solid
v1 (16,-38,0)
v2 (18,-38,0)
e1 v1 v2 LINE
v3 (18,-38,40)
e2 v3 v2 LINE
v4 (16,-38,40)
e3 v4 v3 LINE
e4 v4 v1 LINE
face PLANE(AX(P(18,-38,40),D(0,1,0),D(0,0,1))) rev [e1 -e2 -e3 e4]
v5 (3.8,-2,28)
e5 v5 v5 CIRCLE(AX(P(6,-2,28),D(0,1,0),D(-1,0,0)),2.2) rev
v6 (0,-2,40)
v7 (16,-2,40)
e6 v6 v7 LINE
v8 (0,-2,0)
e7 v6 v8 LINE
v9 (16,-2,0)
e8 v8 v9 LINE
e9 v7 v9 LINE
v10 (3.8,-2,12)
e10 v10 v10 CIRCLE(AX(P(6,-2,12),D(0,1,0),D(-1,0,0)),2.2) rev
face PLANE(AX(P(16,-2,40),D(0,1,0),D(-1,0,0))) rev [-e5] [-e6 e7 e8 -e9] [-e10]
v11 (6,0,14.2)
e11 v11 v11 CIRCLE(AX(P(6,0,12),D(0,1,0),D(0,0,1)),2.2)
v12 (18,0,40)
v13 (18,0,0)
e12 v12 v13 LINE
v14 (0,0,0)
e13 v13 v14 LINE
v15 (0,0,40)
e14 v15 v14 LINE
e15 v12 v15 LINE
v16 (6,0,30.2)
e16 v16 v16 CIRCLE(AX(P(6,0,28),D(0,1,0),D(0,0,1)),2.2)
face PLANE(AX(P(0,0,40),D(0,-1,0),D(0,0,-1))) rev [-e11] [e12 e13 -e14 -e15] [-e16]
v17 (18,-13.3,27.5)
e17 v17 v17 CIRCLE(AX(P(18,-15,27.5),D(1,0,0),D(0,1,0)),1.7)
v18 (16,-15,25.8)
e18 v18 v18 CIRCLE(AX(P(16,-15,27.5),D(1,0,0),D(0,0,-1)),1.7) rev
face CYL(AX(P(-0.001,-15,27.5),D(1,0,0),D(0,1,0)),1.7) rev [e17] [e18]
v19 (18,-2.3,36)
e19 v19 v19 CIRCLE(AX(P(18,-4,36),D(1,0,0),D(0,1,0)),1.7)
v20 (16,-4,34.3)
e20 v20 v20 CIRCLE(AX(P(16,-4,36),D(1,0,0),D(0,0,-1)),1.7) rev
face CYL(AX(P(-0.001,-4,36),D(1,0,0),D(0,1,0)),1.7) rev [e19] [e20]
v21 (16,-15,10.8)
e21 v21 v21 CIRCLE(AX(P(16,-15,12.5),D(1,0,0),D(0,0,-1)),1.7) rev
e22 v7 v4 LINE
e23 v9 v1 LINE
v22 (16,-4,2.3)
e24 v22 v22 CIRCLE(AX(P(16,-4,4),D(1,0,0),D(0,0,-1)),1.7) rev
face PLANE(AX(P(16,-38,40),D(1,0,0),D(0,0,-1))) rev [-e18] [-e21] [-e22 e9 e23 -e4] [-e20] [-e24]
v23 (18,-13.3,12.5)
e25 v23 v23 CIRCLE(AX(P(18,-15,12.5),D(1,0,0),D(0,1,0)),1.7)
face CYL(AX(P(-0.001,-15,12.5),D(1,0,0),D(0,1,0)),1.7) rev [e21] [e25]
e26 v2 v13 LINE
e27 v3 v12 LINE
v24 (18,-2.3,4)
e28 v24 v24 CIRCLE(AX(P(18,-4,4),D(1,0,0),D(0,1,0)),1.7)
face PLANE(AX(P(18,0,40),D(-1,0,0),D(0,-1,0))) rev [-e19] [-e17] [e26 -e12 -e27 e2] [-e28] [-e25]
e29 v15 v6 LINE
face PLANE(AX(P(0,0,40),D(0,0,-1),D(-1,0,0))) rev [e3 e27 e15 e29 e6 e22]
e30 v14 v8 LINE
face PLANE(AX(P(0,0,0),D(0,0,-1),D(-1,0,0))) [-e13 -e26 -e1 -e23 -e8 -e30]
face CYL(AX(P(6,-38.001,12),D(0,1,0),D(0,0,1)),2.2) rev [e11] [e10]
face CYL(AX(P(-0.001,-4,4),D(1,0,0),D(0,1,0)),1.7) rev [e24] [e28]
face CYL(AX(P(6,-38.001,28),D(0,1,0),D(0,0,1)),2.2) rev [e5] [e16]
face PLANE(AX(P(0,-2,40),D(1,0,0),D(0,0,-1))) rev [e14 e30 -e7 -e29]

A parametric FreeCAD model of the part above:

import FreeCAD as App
import Part
import Sketcher

V = App.Vector
Q = App.Units.Quantity


def add_polygon(sketch, points):
    """Adds a closed chain of lines whose ends are joined by coincident constraints."""
    first, n = sketch.GeometryCount, len(points)
    for a, b in zip(points, points[1:] + points[:1]):
        sketch.addGeometry(Part.LineSegment(App.Vector(*a, 0), App.Vector(*b, 0)), False)
    for i in range(n):
        sketch.addConstraint(Sketcher.Constraint("Coincident", first + i, 2, first + (i + 1) % n, 1))

doc = App.newDocument("Part")
params = doc.addObject("Spreadsheet::Sheet", "Params")
for row, (alias, value) in enumerate([
    ("sketch1_width", "18 mm"),
    ("sketch1_width2", "16 mm"),
    ("sketch1_height", "36 mm"),
    ("pad1_length", "40 mm"),
    ("sketch2_diameter", "4.4 mm"),
    ("sketch3_diameter", "4.4 mm"),
    ("sketch4_diameter", "3.4 mm"),
    ("sketch5_diameter", "3.4 mm"),
    ("sketch6_diameter", "3.4 mm"),
    ("sketch7_diameter", "3.4 mm"),
], start=1):
    params.set(f"A{row}", alias)
    params.set(f"B{row}", "=" + value)
    params.setAlias(f"B{row}", alias)

body = doc.addObject("PartDesign::Body", "Body")

# Sketch on XY plane
sketch1 = body.newObject("Sketcher::SketchObject", "Sketch")
sketch1.AttachmentSupport = (doc.getObject("XY_Plane"), [""])
sketch1.MapMode = "FlatFace"
add_polygon(sketch1, [(18, 0), (0, 0), (0, -2), (16, -2), (16, -38), (18, -38)])  # lines 0-5
sketch1.addConstraint([
    Sketcher.Constraint("Horizontal", 0),
    Sketcher.Constraint("Vertical", 1),
    Sketcher.Constraint("Horizontal", 2),
    Sketcher.Constraint("Vertical", 3),
    Sketcher.Constraint("Horizontal", 4),
    Sketcher.Constraint("Vertical", 5),
    Sketcher.Constraint("Coincident", 0, 2, -1, 1),
    Sketcher.Constraint("Equal", 4, 1),
    Sketcher.Constraint("DistanceX", 0, 2, 0, 1, Q("18 mm")),
    Sketcher.Constraint("DistanceX", 2, 1, 2, 2, Q("16 mm")),
    Sketcher.Constraint("DistanceY", 3, 2, 3, 1, Q("36 mm")),
])
sketch1.setExpression("Constraints[14]", "Params.sketch1_width")
sketch1.setExpression("Constraints[15]", "Params.sketch1_width2")
sketch1.setExpression("Constraints[16]", "Params.sketch1_height")
pad1 = body.newObject("PartDesign::Pad", "Pad")
pad1.Profile = sketch1
pad1.setExpression("Length", "Params.pad1_length")

# Sketch on XZ plane
sketch2 = body.newObject("Sketcher::SketchObject", "Sketch001")
sketch2.AttachmentSupport = (doc.getObject("XZ_Plane"), [""])
sketch2.MapMode = "FlatFace"
sketch2.addGeometry(Part.Circle(V(6, 28, 0), V(0, 0, 1), 2.2), False)
sketch2.addConstraint([
    Sketcher.Constraint("Diameter", 0, Q("4.4 mm")),
    Sketcher.Constraint("DistanceX", -1, 1, 0, 3, Q("6 mm")),
    Sketcher.Constraint("DistanceY", -1, 1, 0, 3, Q("28 mm")),
])
sketch2.setExpression("Constraints[0]", "Params.sketch2_diameter")
pocket1 = body.newObject("PartDesign::Pocket", "Pocket")
pocket1.Profile = sketch2
pocket1.Type = "UpToFirst"
pocket1.Reversed = True

# Sketch on XZ plane
sketch3 = body.newObject("Sketcher::SketchObject", "Sketch002")
sketch3.AttachmentSupport = (doc.getObject("XZ_Plane"), [""])
sketch3.MapMode = "FlatFace"
sketch3.addGeometry(Part.Circle(V(6, 12, 0), V(0, 0, 1), 2.2), False)
sketch3.addConstraint([
    Sketcher.Constraint("Diameter", 0, Q("4.4 mm")),
    Sketcher.Constraint("DistanceX", -1, 1, 0, 3, Q("6 mm")),
    Sketcher.Constraint("DistanceY", -1, 1, 0, 3, Q("12 mm")),
])
sketch3.setExpression("Constraints[0]", "Params.sketch3_diameter")
pocket2 = body.newObject("PartDesign::Pocket", "Pocket001")
pocket2.Profile = sketch3
pocket2.Type = "UpToFirst"
pocket2.Reversed = True

# Sketch on YZ plane
sketch4 = body.newObject("Sketcher::SketchObject", "Sketch003")
sketch4.AttachmentSupport = (doc.getObject("YZ_Plane"), [""])
sketch4.MapMode = "FlatFace"
sketch4.AttachmentOffset = App.Placement(V(0, 0, 18), App.Rotation())
sketch4.addGeometry(Part.Circle(V(-15, 27.5, 0), V(0, 0, 1), 1.7), False)
sketch4.addConstraint([
    Sketcher.Constraint("Diameter", 0, Q("3.4 mm")),
    Sketcher.Constraint("DistanceX", 0, 3, -1, 1, Q("15 mm")),
    Sketcher.Constraint("DistanceY", -1, 1, 0, 3, Q("27.5 mm")),
])
sketch4.setExpression("Constraints[0]", "Params.sketch4_diameter")
pocket3 = body.newObject("PartDesign::Pocket", "Pocket002")
pocket3.Profile = sketch4
pocket3.Type = "UpToFirst"

# Sketch on YZ plane
sketch5 = body.newObject("Sketcher::SketchObject", "Sketch004")
sketch5.AttachmentSupport = (doc.getObject("YZ_Plane"), [""])
sketch5.MapMode = "FlatFace"
sketch5.AttachmentOffset = App.Placement(V(0, 0, 18), App.Rotation())
sketch5.addGeometry(Part.Circle(V(-15, 12.5, 0), V(0, 0, 1), 1.7), False)
sketch5.addConstraint([
    Sketcher.Constraint("Diameter", 0, Q("3.4 mm")),
    Sketcher.Constraint("DistanceX", 0, 3, -1, 1, Q("15 mm")),
    Sketcher.Constraint("DistanceY", -1, 1, 0, 3, Q("12.5 mm")),
])
sketch5.setExpression("Constraints[0]", "Params.sketch5_diameter")
pocket4 = body.newObject("PartDesign::Pocket", "Pocket003")
pocket4.Profile = sketch5
pocket4.Type = "UpToFirst"

# Sketch on YZ plane
sketch6 = body.newObject("Sketcher::SketchObject", "Sketch005")
sketch6.AttachmentSupport = (doc.getObject("YZ_Plane"), [""])
sketch6.MapMode = "FlatFace"
sketch6.AttachmentOffset = App.Placement(V(0, 0, 18), App.Rotation())
sketch6.addGeometry(Part.Circle(V(-4, 36, 0), V(0, 0, 1), 1.7), False)
sketch6.addConstraint([
    Sketcher.Constraint("Diameter", 0, Q("3.4 mm")),
    Sketcher.Constraint("DistanceX", 0, 3, -1, 1, Q("4 mm")),
    Sketcher.Constraint("DistanceY", -1, 1, 0, 3, Q("36 mm")),
])
sketch6.setExpression("Constraints[0]", "Params.sketch6_diameter")
pocket5 = body.newObject("PartDesign::Pocket", "Pocket004")
pocket5.Profile = sketch6
pocket5.Type = "UpToFirst"

# Sketch on YZ plane
sketch7 = body.newObject("Sketcher::SketchObject", "Sketch006")
sketch7.AttachmentSupport = (doc.getObject("YZ_Plane"), [""])
sketch7.MapMode = "FlatFace"
sketch7.AttachmentOffset = App.Placement(V(0, 0, 18), App.Rotation())
sketch7.addGeometry(Part.Circle(V(-4, 4, 0), V(0, 0, 1), 1.7), False)
sketch7.addConstraint([
    Sketcher.Constraint("Diameter", 0, Q("3.4 mm")),
    Sketcher.Constraint("DistanceX", 0, 3, -1, 1, Q("4 mm")),
    Sketcher.Constraint("DistanceY", -1, 1, 0, 3, Q("4 mm")),
])
sketch7.setExpression("Constraints[0]", "Params.sketch7_diameter")
pocket6 = body.newObject("PartDesign::Pocket", "Pocket005")
pocket6.Profile = sketch7
pocket6.Type = "UpToFirst"

doc.recompute()
